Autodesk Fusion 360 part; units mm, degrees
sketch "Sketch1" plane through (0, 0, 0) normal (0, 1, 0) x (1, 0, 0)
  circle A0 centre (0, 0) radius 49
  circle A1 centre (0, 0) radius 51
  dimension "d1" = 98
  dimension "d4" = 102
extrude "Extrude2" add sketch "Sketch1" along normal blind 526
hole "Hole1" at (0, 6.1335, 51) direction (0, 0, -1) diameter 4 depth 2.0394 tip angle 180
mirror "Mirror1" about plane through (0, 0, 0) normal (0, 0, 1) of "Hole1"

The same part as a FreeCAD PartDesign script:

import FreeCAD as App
import Part
import Sketcher
Q = App.Units.Quantity

doc = App.newDocument("Part")
params = doc.addObject("Spreadsheet::Sheet", "Params")
for row, (alias, value) in enumerate([
    ("sketch1_diameter", "102 mm"),
    ("sketch1_diameter2", "98 mm"),
    ("pad1_length", "526 mm"),
    ("sketch2_diameter", "4 mm"),
    ("hole_diameter", "4 mm"),
    ("hole_depth", "2.0394 mm"),
], start=1):
    params.set(f"A{row}", alias)
    params.set(f"B{row}", "=" + value)
    params.setAlias(f"B{row}", alias)

body = doc.addObject("PartDesign::Body", "Body")

# Sketch on XZ plane
sketch1 = body.newObject("Sketcher::SketchObject", "Sketch")
sketch1.AttachmentSupport = (doc.getObject("XZ_Plane"), [""])
sketch1.MapMode = "FlatFace"
sketch1.addGeometry([
    Part.Circle(App.Vector(0, 0, 0), App.Vector(0, 0, 1), 51),
    Part.Circle(App.Vector(0, 0, 0), App.Vector(0, 0, 1), 49),
], False)
sketch1.addConstraint([
    Sketcher.Constraint("Coincident", 0, 3, -1, 1),
    Sketcher.Constraint("Coincident", 1, 3, -1, 1),
    Sketcher.Constraint("Diameter", 0, Q("102 mm")),
    Sketcher.Constraint("Diameter", 1, Q("98 mm")),
])
sketch1.setExpression("Constraints[2]", "Params.sketch1_diameter")
sketch1.setExpression("Constraints[3]", "Params.sketch1_diameter2")
pad1 = body.newObject("PartDesign::Pad", "Pad")
pad1.Profile = sketch1
pad1.setExpression("Length", "Params.pad1_length")
pad1.Reversed = True

# Sketch on XY plane
sketch2 = body.newObject("Sketcher::SketchObject", "Sketch001")
sketch2.AttachmentSupport = (doc.getObject("XY_Plane"), [""])
sketch2.MapMode = "FlatFace"
sketch2.AttachmentOffset = App.Placement(App.Vector(0, 0, 51), App.Rotation())
sketch2.addGeometry(Part.Circle(App.Vector(0, 6.1335, 0), App.Vector(0, 0, 1), 2), False)
sketch2.addConstraint([
    Sketcher.Constraint("PointOnObject", 0, 3, -2),
    Sketcher.Constraint("Diameter", 0, Q("4 mm")),
    Sketcher.Constraint("DistanceY", -1, 1, 0, 3, Q("6.1335 mm")),
])
sketch2.setExpression("Constraints[1]", "Params.sketch2_diameter")
doc.recompute()
hole = body.newObject("PartDesign::Hole", "Hole")
hole.Profile = sketch2
hole.ThreadType = "None"
hole.setExpression("Diameter", "Params.hole_diameter")
hole.DepthType = "Dimension"
hole.setExpression("Depth", "Params.hole_depth")
hole.DrillPoint = "Flat"
doc.recompute()

mirrored = body.newObject("PartDesign::Mirrored", "Mirrored")
mirrored.Originals = [hole]
mirrored.MirrorPlane = (doc.getObject("XY_Plane"), [""])
body.Tip = mirrored

doc.recompute()
